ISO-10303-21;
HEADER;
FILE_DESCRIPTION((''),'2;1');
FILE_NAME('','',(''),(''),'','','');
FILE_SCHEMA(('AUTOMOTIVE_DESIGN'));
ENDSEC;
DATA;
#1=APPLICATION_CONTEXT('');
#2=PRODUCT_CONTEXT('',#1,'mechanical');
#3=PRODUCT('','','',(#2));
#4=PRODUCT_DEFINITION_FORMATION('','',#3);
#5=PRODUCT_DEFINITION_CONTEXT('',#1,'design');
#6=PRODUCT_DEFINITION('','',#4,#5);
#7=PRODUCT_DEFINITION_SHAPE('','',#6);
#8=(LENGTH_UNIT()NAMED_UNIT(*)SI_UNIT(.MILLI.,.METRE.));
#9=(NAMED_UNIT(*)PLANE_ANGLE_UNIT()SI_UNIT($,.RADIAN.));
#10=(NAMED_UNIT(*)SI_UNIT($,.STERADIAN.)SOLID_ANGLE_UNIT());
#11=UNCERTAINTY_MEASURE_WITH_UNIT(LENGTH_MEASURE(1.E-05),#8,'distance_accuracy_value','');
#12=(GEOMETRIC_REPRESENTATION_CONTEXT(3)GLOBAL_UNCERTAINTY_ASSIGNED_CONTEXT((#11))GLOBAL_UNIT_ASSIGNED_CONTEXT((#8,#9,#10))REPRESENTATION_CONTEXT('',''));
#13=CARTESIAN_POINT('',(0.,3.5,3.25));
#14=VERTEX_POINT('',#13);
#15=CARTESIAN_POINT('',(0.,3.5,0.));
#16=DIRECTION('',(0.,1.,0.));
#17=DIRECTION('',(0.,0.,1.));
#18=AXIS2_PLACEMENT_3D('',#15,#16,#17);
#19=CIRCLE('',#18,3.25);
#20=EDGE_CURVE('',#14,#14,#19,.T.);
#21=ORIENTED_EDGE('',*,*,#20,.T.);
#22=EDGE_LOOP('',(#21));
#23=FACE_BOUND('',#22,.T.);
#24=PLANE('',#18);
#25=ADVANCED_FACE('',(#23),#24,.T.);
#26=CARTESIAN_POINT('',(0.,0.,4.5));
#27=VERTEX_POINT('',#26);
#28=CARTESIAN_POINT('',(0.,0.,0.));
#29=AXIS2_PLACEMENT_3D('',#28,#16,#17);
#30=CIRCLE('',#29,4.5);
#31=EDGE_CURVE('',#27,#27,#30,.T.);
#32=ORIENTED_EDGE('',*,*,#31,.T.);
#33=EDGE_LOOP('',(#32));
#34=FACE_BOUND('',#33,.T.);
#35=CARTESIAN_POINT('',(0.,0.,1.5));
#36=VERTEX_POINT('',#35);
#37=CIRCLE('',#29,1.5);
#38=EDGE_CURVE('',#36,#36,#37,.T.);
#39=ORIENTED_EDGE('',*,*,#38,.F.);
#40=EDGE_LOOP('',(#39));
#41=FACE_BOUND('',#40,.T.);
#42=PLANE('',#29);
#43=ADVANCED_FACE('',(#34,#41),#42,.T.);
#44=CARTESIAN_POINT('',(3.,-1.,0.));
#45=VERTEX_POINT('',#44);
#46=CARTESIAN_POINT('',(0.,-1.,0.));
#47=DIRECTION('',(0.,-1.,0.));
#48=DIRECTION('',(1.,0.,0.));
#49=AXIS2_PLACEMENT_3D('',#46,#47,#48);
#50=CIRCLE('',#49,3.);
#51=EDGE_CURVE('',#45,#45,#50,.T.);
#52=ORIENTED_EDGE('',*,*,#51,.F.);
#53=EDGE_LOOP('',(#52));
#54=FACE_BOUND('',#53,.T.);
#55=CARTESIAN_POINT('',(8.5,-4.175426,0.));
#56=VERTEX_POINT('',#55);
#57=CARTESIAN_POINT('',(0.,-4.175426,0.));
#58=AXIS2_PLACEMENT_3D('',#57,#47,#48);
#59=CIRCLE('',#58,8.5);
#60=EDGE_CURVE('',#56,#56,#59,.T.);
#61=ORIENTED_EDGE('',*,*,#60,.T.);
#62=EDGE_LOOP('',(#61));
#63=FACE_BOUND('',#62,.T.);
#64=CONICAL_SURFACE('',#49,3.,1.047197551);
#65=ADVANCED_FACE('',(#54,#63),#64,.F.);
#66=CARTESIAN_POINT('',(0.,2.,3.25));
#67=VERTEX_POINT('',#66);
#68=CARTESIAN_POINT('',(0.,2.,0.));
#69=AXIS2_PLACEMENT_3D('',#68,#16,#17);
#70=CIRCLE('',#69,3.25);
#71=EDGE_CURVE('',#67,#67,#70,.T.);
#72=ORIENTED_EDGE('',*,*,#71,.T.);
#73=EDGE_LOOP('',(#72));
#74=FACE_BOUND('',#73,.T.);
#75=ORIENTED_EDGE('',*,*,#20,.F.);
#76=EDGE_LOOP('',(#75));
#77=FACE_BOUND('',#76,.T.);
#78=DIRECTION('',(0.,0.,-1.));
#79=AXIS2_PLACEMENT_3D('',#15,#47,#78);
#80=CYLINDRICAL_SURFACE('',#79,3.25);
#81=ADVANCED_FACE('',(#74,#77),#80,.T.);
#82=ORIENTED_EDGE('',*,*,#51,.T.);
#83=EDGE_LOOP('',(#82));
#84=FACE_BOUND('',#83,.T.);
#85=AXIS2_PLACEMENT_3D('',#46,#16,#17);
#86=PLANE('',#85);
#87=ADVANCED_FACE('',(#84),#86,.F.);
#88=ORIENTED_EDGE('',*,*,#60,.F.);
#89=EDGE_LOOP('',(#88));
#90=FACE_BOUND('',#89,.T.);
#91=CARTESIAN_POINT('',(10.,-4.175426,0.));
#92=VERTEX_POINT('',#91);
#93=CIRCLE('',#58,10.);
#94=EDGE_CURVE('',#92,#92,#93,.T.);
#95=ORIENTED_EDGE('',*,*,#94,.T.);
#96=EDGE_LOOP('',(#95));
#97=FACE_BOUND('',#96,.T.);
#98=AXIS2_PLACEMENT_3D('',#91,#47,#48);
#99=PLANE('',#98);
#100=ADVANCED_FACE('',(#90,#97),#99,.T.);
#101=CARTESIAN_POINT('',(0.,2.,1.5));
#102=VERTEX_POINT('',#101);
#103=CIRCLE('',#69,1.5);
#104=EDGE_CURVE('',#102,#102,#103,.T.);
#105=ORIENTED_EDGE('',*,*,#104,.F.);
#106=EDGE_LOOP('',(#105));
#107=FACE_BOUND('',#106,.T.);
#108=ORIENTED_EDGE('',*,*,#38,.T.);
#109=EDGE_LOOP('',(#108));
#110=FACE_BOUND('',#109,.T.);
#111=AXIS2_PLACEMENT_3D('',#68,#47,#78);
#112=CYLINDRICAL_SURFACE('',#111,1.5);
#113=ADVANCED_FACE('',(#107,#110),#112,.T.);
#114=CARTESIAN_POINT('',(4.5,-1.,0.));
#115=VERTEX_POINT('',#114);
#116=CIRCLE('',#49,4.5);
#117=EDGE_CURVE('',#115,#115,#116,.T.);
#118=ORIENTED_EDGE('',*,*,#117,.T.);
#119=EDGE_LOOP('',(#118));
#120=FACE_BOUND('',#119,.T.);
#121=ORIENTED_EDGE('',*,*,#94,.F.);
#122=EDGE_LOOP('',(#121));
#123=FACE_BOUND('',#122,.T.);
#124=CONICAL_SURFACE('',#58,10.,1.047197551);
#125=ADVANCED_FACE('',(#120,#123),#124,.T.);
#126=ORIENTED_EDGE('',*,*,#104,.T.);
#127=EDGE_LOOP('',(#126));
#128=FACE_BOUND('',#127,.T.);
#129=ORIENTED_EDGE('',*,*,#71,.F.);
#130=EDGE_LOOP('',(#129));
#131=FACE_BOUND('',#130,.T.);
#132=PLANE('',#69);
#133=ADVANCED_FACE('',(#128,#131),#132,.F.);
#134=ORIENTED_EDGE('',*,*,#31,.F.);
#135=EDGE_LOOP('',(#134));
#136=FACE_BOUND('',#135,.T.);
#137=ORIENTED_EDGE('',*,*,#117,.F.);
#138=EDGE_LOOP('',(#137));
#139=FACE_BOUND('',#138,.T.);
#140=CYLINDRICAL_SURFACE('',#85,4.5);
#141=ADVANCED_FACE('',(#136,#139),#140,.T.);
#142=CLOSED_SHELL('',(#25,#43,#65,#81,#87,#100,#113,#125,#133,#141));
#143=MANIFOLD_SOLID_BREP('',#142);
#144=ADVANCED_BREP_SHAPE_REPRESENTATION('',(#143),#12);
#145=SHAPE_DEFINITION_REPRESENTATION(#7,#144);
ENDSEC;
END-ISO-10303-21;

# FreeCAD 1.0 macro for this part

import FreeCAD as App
import Part
import Sketcher

V = App.Vector
Q = App.Units.Quantity

doc = App.newDocument("Part")
body = doc.addObject("PartDesign::Body", "Body")

# Sketch on XZ plane
sketch1 = doc.addObject("Sketcher::SketchObject", "Sketch")
body.addObject(sketch1)
sketch1.AttachmentSupport = (doc.XZ_Plane, [""])
sketch1.MapMode = "FlatFace"
sketch1.addGeometry(Part.Circle(V(0, 0, 0), V(0, 0, 1), 1.5), False)
sketch1.addConstraint(Sketcher.Constraint("Coincident", 0, 3, -1, 1))
sketch1.addConstraint(Sketcher.Constraint("Diameter", 0, Q("3 mm")))
pad1 = doc.addObject("PartDesign::Pad", "Pad")
body.addObject(pad1)
pad1.Profile = sketch1
pad1.Length = 2
pad1.Reversed = True

# Sketch on XZ plane
sketch2 = doc.addObject("Sketcher::SketchObject", "Sketch001")
body.addObject(sketch2)
sketch2.AttachmentSupport = (doc.XZ_Plane, [""])
sketch2.MapMode = "FlatFace"
sketch2.AttachmentOffset = App.Placement(V(0, 0, -2), App.Rotation())
sketch2.addGeometry(Part.Circle(V(0, 0, 0), V(0, 0, 1), 3.2), False)
sketch2.addConstraint(Sketcher.Constraint("Coincident", 0, 3, -1, 1))
sketch2.addConstraint(Sketcher.Constraint("Diameter", 0, Q("6.5 mm")))
pad2 = doc.addObject("PartDesign::Pad", "Pad001")
body.addObject(pad2)
pad2.Profile = sketch2
pad2.Length = 1.5
pad2.Reversed = True

# Sketch on XZ plane
sketch3 = doc.addObject("Sketcher::SketchObject", "Sketch002")
body.addObject(sketch3)
sketch3.AttachmentSupport = (doc.XZ_Plane, [""])
sketch3.MapMode = "FlatFace"
sketch3.addGeometry(Part.Circle(V(0, 0, 0), V(0, 0, 1), 4.5), False)
sketch3.addConstraint(Sketcher.Constraint("Coincident", 0, 3, -1, 1))
sketch3.addConstraint(Sketcher.Constraint("Diameter", 0, Q("9 mm")))
pad3 = doc.addObject("PartDesign::Pad", "Pad002")
body.addObject(pad3)
pad3.Profile = sketch3
pad3.Length = 1

# Sketch on XY plane
sketch4 = doc.addObject("Sketcher::SketchObject", "Sketch003")
body.addObject(sketch4)
sketch4.AttachmentSupport = (doc.XY_Plane, [""])
sketch4.MapMode = "FlatFace"
sketch4.addGeometry(Part.LineSegment(V(10, -4.2, 0), V(4.5, -1, 0)), False)
sketch4.addGeometry(Part.LineSegment(V(4.5, -1, 0), V(3, -1, 0)), False)
sketch4.addGeometry(Part.LineSegment(V(3, -1, 0), V(8.5, -4.2, 0)), False)
sketch4.addGeometry(Part.LineSegment(V(8.5, -4.2, 0), V(10, -4.2, 0)), False)
sketch4.addConstraint(Sketcher.Constraint("Coincident", 0, 2, 1, 1))
sketch4.addConstraint(Sketcher.Constraint("Coincident", 1, 2, 2, 1))
sketch4.addConstraint(Sketcher.Constraint("Coincident", 2, 2, 3, 1))
sketch4.addConstraint(Sketcher.Constraint("Coincident", 3, 2, 0, 1))
sketch4.addConstraint(Sketcher.Constraint("Horizontal", 1))
sketch4.addConstraint(Sketcher.Constraint("Horizontal", 3))
sketch4.addConstraint(Sketcher.Constraint("Parallel", 0, 2))
sketch4.addConstraint(Sketcher.Constraint("Angle", 0, Q("150 deg")))
sketch4.addConstraint(Sketcher.Constraint("DistanceX", 1, 2, 1, 1, Q("1.5 mm")))
sketch4.addConstraint(Sketcher.Constraint("DistanceY", 0, 2, -1, 1, Q("1 mm")))
sketch4.addConstraint(Sketcher.Constraint("DistanceX", -1, 1, 1, 2, Q("3 mm")))
sketch4.addConstraint(Sketcher.Constraint("DistanceX", -1, 1, 3, 2, Q("10 mm")))
revolution = doc.addObject("PartDesign::Revolution", "Revolution")
body.addObject(revolution)
revolution.Profile = sketch4
revolution.ReferenceAxis = (sketch4, ["V_Axis"])
revolution.Angle = 360

doc.recompute()
